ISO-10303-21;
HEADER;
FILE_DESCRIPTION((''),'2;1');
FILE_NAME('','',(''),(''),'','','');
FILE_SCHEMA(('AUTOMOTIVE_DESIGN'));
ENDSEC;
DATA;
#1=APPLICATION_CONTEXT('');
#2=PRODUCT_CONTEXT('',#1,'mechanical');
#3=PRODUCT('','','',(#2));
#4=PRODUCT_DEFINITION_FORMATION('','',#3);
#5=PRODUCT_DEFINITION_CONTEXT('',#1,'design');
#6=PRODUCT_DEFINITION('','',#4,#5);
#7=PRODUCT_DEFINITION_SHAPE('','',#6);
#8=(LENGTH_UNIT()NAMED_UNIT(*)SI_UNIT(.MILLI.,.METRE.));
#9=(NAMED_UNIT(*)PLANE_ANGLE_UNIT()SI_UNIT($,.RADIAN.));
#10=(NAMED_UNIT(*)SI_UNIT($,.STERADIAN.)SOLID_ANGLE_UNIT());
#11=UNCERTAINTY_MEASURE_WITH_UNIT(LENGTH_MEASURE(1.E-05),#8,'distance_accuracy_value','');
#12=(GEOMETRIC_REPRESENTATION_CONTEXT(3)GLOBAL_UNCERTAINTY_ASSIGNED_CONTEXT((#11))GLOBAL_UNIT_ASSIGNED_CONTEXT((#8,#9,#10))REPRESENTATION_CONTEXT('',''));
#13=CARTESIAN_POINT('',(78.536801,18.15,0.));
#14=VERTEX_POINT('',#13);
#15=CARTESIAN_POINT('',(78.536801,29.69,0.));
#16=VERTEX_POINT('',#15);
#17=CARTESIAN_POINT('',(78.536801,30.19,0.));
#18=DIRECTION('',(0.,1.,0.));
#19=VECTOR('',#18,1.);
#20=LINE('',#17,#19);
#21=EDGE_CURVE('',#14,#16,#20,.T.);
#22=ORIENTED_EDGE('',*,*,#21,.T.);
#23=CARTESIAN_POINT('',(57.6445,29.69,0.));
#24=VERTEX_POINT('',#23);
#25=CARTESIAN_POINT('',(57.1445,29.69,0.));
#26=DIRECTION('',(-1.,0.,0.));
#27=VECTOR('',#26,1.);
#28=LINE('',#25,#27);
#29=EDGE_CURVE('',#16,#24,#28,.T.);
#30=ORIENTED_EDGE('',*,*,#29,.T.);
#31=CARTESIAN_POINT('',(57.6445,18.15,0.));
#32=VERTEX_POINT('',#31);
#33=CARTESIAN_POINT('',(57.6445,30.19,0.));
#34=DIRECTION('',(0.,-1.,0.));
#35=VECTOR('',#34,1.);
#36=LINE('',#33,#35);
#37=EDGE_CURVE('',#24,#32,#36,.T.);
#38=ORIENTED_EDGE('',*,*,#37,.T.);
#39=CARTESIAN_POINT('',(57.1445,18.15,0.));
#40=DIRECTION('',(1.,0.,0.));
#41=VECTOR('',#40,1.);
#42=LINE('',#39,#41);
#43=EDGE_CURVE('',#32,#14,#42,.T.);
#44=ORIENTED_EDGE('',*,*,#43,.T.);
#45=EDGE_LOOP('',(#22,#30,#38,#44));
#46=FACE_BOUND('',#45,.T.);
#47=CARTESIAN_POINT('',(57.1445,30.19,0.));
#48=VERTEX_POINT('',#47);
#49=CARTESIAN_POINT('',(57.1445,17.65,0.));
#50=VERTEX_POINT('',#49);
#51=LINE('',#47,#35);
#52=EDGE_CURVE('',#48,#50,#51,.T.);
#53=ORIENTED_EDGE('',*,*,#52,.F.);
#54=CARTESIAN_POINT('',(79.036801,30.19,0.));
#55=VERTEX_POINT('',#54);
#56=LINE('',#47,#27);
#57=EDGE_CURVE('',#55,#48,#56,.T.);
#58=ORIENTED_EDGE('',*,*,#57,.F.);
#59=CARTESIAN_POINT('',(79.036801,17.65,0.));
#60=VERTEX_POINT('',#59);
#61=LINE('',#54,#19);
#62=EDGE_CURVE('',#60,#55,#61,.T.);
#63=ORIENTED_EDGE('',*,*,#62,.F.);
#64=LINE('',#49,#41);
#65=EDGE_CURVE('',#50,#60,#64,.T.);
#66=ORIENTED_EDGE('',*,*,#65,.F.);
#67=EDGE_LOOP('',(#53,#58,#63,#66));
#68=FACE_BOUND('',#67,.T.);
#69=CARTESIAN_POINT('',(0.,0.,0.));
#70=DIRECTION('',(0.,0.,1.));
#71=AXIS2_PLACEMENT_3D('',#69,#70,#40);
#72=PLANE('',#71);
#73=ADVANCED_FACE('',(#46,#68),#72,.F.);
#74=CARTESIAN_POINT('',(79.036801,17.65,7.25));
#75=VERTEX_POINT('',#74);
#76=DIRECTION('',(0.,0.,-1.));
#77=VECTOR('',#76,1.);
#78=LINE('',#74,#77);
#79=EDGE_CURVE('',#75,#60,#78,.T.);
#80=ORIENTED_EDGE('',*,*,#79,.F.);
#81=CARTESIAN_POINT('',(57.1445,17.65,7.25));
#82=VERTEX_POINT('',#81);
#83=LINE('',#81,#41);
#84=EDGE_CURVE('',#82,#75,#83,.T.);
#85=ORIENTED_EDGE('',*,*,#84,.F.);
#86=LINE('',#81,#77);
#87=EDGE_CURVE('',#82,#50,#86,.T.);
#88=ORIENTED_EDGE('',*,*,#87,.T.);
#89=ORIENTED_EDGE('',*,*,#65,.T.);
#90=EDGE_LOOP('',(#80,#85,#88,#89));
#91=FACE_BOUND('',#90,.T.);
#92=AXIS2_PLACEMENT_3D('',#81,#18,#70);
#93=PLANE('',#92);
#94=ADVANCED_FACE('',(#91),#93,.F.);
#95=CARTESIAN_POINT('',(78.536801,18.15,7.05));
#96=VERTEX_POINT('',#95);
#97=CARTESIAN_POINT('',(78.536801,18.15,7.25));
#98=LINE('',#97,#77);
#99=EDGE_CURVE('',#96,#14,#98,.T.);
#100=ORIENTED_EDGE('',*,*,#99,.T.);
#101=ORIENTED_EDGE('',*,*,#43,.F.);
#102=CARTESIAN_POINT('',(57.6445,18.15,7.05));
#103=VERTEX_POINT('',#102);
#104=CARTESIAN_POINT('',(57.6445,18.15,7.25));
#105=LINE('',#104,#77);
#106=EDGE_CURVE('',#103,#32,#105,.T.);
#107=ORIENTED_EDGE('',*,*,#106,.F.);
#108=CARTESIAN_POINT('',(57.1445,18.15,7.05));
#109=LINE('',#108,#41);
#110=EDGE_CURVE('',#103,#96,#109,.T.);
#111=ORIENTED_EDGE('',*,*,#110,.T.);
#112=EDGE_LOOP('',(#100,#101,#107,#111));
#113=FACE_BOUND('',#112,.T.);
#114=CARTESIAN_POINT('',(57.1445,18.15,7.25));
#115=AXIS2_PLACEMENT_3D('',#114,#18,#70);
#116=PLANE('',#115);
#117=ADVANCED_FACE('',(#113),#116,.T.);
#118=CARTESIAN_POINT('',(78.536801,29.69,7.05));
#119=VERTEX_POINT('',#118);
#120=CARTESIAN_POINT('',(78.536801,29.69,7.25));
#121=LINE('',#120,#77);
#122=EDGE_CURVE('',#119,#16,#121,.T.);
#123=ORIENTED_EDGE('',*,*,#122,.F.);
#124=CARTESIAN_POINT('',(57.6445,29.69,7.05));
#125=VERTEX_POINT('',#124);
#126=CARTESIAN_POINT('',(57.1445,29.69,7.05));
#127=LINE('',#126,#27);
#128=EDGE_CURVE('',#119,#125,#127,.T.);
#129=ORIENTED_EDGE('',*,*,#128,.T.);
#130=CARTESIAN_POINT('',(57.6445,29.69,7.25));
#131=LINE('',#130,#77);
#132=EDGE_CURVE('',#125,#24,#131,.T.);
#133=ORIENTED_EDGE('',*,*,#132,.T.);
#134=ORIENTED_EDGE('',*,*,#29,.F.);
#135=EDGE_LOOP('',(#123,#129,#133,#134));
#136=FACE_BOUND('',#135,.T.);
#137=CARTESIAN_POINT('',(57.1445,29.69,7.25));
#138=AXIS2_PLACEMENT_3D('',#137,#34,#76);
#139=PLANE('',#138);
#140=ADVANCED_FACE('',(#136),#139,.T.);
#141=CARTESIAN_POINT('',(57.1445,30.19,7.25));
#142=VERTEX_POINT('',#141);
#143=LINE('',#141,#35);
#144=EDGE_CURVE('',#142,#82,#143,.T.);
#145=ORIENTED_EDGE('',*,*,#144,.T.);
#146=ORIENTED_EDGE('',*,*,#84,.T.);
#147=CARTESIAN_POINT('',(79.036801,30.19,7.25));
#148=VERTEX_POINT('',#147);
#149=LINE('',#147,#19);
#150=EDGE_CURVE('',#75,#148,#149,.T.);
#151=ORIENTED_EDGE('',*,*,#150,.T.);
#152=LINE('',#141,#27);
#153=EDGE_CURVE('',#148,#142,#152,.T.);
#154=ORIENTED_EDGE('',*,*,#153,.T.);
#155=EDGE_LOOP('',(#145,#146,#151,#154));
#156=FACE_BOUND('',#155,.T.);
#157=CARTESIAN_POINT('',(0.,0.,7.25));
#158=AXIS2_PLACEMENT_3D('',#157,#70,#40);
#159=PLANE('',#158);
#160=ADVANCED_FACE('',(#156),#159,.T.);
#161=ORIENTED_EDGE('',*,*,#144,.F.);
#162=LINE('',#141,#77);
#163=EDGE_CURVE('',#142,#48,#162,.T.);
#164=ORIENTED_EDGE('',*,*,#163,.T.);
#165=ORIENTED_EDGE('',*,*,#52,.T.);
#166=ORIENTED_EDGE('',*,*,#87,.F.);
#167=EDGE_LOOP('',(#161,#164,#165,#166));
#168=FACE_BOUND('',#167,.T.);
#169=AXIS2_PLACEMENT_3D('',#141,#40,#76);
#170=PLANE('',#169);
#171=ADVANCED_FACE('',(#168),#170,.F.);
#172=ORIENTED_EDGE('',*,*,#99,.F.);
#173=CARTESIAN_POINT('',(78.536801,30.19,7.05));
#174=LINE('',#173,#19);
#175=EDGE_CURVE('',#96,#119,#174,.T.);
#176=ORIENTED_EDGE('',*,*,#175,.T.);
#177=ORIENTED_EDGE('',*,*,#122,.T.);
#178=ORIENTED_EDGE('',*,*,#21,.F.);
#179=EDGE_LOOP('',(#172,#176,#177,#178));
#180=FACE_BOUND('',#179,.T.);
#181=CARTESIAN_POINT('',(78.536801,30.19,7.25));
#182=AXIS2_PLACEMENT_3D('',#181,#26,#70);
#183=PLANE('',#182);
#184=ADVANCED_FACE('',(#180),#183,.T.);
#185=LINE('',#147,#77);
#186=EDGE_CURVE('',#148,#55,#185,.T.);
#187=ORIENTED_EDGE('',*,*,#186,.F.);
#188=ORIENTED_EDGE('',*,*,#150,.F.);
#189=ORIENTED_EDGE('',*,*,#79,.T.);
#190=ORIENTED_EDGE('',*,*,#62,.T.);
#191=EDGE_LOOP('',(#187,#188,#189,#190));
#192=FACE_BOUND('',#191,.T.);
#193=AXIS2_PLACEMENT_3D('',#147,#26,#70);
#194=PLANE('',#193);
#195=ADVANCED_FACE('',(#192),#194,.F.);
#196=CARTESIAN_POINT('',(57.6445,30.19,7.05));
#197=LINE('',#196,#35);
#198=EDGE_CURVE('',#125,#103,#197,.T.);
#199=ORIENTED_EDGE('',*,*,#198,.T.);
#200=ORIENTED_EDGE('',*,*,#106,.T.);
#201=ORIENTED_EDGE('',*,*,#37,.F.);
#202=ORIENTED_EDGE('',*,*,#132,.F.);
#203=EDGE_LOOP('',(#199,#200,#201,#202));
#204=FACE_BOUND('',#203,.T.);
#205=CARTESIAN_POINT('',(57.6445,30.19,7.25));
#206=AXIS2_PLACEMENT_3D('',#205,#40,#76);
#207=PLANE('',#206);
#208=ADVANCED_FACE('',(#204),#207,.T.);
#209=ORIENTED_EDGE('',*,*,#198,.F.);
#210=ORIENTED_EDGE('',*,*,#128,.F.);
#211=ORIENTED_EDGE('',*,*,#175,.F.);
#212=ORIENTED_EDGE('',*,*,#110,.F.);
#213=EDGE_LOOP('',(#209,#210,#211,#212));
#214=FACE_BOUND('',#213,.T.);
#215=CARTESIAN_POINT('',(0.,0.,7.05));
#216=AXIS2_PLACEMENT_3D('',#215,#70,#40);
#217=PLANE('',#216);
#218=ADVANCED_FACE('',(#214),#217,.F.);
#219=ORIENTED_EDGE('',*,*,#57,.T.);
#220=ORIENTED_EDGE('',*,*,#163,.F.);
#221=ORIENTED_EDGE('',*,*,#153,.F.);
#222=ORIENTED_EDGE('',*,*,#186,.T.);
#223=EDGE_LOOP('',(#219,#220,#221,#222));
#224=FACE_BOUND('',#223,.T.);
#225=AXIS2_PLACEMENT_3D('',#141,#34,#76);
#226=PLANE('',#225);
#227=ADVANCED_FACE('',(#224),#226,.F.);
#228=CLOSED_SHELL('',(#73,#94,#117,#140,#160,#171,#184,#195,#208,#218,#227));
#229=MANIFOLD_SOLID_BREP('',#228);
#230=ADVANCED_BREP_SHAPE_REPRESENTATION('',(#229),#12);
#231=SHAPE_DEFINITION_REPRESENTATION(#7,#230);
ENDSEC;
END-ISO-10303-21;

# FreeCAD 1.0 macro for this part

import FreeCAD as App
import Part
import Sketcher
Q = App.Units.Quantity


def faces_at(feature, points):
    """Names of the faces that lie closest to the given points."""
    faces = feature.Shape.Faces
    near = lambda p: min(range(len(faces)), key=lambda i: faces[i].distToShape(Part.Vertex(*p))[0])
    return sorted({f"Face{near(p) + 1}" for p in points})

doc = App.newDocument("Part")
body = doc.addObject("PartDesign::Body", "Body")

# Sketch on XY plane
sketch1 = body.newObject("Sketcher::SketchObject", "Sketch")
sketch1.AttachmentSupport = (doc.getObject("XY_Plane"), [""])
sketch1.MapMode = "FlatFace"
sketch1.addGeometry(Part.LineSegment(App.Vector(57, 30, 0), App.Vector(57, 18, 0)), False)
sketch1.addGeometry(Part.LineSegment(App.Vector(57, 18, 0), App.Vector(79, 18, 0)), False)
sketch1.addGeometry(Part.LineSegment(App.Vector(79, 18, 0), App.Vector(79, 30, 0)), False)
sketch1.addGeometry(Part.LineSegment(App.Vector(79, 30, 0), App.Vector(57, 30, 0)), False)
sketch1.addConstraint(Sketcher.Constraint("Coincident", 0, 2, 1, 1))
sketch1.addConstraint(Sketcher.Constraint("Coincident", 1, 2, 2, 1))
sketch1.addConstraint(Sketcher.Constraint("Coincident", 2, 2, 3, 1))
sketch1.addConstraint(Sketcher.Constraint("Coincident", 3, 2, 0, 1))
sketch1.addConstraint(Sketcher.Constraint("Vertical", 0))
sketch1.addConstraint(Sketcher.Constraint("Horizontal", 1))
sketch1.addConstraint(Sketcher.Constraint("Vertical", 2))
sketch1.addConstraint(Sketcher.Constraint("Horizontal", 3))
sketch1.addConstraint(Sketcher.Constraint("DistanceY", 0, 2, 0, 1, Q("12.54 mm")))
sketch1.addConstraint(Sketcher.Constraint("DistanceY", -1, 1, 0, 2, Q("17.65 mm")))
sketch1.addConstraint(Sketcher.Constraint("DistanceX", 1, 1, 1, 2, Q("21.892301 mm")))
sketch1.addConstraint(Sketcher.Constraint("DistanceX", -1, 1, 0, 2, Q("57.1445 mm")))
pad1 = body.newObject("PartDesign::Pad", "Pad")
pad1.Profile = sketch1
pad1.Length = 7.25
doc.recompute()

thickness = body.newObject("PartDesign::Thickness", "Thickness")
thickness.Base = (pad1, faces_at(pad1, [(68.091, 23.92, 0)]))
thickness.Value = 0.5
thickness.Reversed = True
thickness.Join = "Intersection"

# Sketch on XY plane
sketch2 = body.newObject("Sketcher::SketchObject", "Sketch001")
sketch2.AttachmentSupport = (doc.getObject("XY_Plane"), [""])
sketch2.MapMode = "FlatFace"
sketch2.AttachmentOffset = App.Placement(App.Vector(0, 0, 6.75), App.Rotation())
sketch2.addGeometry(Part.LineSegment(App.Vector(58, 30, 0), App.Vector(58, 18, 0)), False)
sketch2.addGeometry(Part.LineSegment(App.Vector(58, 18, 0), App.Vector(79, 18, 0)), False)
sketch2.addGeometry(Part.LineSegment(App.Vector(79, 18, 0), App.Vector(79, 30, 0)), False)
sketch2.addGeometry(Part.LineSegment(App.Vector(79, 30, 0), App.Vector(58, 30, 0)), False)
sketch2.addConstraint(Sketcher.Constraint("Coincident", 0, 2, 1, 1))
sketch2.addConstraint(Sketcher.Constraint("Coincident", 1, 2, 2, 1))
sketch2.addConstraint(Sketcher.Constraint("Coincident", 2, 2, 3, 1))
sketch2.addConstraint(Sketcher.Constraint("Coincident", 3, 2, 0, 1))
sketch2.addConstraint(Sketcher.Constraint("Vertical", 0))
sketch2.addConstraint(Sketcher.Constraint("Horizontal", 1))
sketch2.addConstraint(Sketcher.Constraint("Vertical", 2))
sketch2.addConstraint(Sketcher.Constraint("Horizontal", 3))
sketch2.addConstraint(Sketcher.Constraint("DistanceY", 0, 2, 0, 1, Q("11.54 mm")))
sketch2.addConstraint(Sketcher.Constraint("DistanceY", -1, 1, 0, 2, Q("18.15 mm")))
sketch2.addConstraint(Sketcher.Constraint("DistanceX", 1, 1, 1, 2, Q("20.892301 mm")))
sketch2.addConstraint(Sketcher.Constraint("DistanceX", -1, 1, 0, 2, Q("57.6445 mm")))
pocket1 = body.newObject("PartDesign::Pocket", "Pocket")
pocket1.Profile = sketch2
pocket1.Length = 0.3
pocket1.Reversed = True

doc.recompute()
